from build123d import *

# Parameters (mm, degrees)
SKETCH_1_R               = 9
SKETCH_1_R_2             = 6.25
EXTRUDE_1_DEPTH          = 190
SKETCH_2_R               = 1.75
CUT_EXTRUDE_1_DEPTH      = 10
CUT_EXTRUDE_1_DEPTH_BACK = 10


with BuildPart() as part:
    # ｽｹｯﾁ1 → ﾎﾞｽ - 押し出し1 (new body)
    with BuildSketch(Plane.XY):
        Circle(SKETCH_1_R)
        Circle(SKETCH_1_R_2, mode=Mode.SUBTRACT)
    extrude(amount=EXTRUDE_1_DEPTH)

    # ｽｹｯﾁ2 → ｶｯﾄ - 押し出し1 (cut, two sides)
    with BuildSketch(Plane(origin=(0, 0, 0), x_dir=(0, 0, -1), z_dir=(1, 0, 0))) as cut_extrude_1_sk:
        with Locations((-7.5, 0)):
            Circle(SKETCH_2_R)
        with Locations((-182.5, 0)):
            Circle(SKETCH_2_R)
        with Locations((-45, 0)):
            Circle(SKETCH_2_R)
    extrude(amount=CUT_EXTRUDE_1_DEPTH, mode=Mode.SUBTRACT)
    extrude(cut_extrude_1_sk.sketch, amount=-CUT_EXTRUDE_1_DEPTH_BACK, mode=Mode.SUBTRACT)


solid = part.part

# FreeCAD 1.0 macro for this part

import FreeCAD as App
import Part
import Sketcher
from FreeCAD import Vector

doc = App.newDocument("Part")
params = doc.addObject("Spreadsheet::Sheet", "Params")
for row, (alias, value) in enumerate([
    ("sketch1_diameter", "18 mm"),
    ("sketch1_diameter2", "12.5 mm"),
    ("pad1_length", "190 mm"),
    ("sketch2_diameter", "3.5 mm"),
], start=1):
    params.set(f"A{row}", alias)
    params.set(f"B{row}", "=" + value)
    params.setAlias(f"B{row}", alias)

body = doc.addObject("PartDesign::Body", "Body")

sketch1 = body.newObject("Sketcher::SketchObject", "Sketch")
sketch1.AttachmentSupport = (doc.getObject("XY_Plane"), [""])
sketch1.MapMode = "FlatFace"
sketch1.addGeometry([
    Part.Circle(Vector(0, 0, 0), Vector(0, 0, 1), 9),
    Part.Circle(Vector(0, 0, 0), Vector(0, 0, 1), 6),
], False)
sketch1.addConstraint([
    Sketcher.Constraint("Coincident", 0, 3, -1, 1),
    Sketcher.Constraint("Coincident", 1, 3, -1, 1),
    Sketcher.Constraint("Diameter", 0, 18.0),
    Sketcher.Constraint("Diameter", 1, 12.5),
])
sketch1.setExpression("Constraints[2]", "Params.sketch1_diameter")
sketch1.setExpression("Constraints[3]", "Params.sketch1_diameter2")
pad1 = body.newObject("PartDesign::Pad", "Pad")
pad1.Profile = sketch1
pad1.setExpression("Length", "Params.pad1_length")

sketch2 = body.newObject("Sketcher::SketchObject", "Sketch001")
sketch2.AttachmentSupport = (doc.getObject("YZ_Plane"), [""])
sketch2.MapMode = "FlatFace"
sketch2.addGeometry([
    Part.Circle(Vector(0, 7.5, 0), Vector(0, 0, 1), 1.8),
    Part.Circle(Vector(0, 182.5, 0), Vector(0, 0, 1), 1.8),
    Part.Circle(Vector(0, 45, 0), Vector(0, 0, 1), 1.8),
], False)
sketch2.addConstraint([
    Sketcher.Constraint("Equal", 0, 1),
    Sketcher.Constraint("Equal", 1, 2),
    Sketcher.Constraint("PointOnObject", 0, 3, -2),
    Sketcher.Constraint("PointOnObject", 1, 3, -2),
    Sketcher.Constraint("PointOnObject", 2, 3, -2),
    Sketcher.Constraint("Diameter", 0, 3.5),
    Sketcher.Constraint("DistanceY", -1, 1, 2, 3, 45.0),
    Sketcher.Constraint("DistanceY", 0, 3, 1, 3, 175.0),
    Sketcher.Constraint("DistanceY", -1, 1, 0, 3, 7.5),
])
sketch2.setExpression("Constraints[5]", "Params.sketch2_diameter")
pocket1 = body.newObject("PartDesign::Pocket", "Pocket")
pocket1.Profile = sketch2
pocket1.Type = "ThroughAll"
pocket1.Midplane = True

doc.recompute()
